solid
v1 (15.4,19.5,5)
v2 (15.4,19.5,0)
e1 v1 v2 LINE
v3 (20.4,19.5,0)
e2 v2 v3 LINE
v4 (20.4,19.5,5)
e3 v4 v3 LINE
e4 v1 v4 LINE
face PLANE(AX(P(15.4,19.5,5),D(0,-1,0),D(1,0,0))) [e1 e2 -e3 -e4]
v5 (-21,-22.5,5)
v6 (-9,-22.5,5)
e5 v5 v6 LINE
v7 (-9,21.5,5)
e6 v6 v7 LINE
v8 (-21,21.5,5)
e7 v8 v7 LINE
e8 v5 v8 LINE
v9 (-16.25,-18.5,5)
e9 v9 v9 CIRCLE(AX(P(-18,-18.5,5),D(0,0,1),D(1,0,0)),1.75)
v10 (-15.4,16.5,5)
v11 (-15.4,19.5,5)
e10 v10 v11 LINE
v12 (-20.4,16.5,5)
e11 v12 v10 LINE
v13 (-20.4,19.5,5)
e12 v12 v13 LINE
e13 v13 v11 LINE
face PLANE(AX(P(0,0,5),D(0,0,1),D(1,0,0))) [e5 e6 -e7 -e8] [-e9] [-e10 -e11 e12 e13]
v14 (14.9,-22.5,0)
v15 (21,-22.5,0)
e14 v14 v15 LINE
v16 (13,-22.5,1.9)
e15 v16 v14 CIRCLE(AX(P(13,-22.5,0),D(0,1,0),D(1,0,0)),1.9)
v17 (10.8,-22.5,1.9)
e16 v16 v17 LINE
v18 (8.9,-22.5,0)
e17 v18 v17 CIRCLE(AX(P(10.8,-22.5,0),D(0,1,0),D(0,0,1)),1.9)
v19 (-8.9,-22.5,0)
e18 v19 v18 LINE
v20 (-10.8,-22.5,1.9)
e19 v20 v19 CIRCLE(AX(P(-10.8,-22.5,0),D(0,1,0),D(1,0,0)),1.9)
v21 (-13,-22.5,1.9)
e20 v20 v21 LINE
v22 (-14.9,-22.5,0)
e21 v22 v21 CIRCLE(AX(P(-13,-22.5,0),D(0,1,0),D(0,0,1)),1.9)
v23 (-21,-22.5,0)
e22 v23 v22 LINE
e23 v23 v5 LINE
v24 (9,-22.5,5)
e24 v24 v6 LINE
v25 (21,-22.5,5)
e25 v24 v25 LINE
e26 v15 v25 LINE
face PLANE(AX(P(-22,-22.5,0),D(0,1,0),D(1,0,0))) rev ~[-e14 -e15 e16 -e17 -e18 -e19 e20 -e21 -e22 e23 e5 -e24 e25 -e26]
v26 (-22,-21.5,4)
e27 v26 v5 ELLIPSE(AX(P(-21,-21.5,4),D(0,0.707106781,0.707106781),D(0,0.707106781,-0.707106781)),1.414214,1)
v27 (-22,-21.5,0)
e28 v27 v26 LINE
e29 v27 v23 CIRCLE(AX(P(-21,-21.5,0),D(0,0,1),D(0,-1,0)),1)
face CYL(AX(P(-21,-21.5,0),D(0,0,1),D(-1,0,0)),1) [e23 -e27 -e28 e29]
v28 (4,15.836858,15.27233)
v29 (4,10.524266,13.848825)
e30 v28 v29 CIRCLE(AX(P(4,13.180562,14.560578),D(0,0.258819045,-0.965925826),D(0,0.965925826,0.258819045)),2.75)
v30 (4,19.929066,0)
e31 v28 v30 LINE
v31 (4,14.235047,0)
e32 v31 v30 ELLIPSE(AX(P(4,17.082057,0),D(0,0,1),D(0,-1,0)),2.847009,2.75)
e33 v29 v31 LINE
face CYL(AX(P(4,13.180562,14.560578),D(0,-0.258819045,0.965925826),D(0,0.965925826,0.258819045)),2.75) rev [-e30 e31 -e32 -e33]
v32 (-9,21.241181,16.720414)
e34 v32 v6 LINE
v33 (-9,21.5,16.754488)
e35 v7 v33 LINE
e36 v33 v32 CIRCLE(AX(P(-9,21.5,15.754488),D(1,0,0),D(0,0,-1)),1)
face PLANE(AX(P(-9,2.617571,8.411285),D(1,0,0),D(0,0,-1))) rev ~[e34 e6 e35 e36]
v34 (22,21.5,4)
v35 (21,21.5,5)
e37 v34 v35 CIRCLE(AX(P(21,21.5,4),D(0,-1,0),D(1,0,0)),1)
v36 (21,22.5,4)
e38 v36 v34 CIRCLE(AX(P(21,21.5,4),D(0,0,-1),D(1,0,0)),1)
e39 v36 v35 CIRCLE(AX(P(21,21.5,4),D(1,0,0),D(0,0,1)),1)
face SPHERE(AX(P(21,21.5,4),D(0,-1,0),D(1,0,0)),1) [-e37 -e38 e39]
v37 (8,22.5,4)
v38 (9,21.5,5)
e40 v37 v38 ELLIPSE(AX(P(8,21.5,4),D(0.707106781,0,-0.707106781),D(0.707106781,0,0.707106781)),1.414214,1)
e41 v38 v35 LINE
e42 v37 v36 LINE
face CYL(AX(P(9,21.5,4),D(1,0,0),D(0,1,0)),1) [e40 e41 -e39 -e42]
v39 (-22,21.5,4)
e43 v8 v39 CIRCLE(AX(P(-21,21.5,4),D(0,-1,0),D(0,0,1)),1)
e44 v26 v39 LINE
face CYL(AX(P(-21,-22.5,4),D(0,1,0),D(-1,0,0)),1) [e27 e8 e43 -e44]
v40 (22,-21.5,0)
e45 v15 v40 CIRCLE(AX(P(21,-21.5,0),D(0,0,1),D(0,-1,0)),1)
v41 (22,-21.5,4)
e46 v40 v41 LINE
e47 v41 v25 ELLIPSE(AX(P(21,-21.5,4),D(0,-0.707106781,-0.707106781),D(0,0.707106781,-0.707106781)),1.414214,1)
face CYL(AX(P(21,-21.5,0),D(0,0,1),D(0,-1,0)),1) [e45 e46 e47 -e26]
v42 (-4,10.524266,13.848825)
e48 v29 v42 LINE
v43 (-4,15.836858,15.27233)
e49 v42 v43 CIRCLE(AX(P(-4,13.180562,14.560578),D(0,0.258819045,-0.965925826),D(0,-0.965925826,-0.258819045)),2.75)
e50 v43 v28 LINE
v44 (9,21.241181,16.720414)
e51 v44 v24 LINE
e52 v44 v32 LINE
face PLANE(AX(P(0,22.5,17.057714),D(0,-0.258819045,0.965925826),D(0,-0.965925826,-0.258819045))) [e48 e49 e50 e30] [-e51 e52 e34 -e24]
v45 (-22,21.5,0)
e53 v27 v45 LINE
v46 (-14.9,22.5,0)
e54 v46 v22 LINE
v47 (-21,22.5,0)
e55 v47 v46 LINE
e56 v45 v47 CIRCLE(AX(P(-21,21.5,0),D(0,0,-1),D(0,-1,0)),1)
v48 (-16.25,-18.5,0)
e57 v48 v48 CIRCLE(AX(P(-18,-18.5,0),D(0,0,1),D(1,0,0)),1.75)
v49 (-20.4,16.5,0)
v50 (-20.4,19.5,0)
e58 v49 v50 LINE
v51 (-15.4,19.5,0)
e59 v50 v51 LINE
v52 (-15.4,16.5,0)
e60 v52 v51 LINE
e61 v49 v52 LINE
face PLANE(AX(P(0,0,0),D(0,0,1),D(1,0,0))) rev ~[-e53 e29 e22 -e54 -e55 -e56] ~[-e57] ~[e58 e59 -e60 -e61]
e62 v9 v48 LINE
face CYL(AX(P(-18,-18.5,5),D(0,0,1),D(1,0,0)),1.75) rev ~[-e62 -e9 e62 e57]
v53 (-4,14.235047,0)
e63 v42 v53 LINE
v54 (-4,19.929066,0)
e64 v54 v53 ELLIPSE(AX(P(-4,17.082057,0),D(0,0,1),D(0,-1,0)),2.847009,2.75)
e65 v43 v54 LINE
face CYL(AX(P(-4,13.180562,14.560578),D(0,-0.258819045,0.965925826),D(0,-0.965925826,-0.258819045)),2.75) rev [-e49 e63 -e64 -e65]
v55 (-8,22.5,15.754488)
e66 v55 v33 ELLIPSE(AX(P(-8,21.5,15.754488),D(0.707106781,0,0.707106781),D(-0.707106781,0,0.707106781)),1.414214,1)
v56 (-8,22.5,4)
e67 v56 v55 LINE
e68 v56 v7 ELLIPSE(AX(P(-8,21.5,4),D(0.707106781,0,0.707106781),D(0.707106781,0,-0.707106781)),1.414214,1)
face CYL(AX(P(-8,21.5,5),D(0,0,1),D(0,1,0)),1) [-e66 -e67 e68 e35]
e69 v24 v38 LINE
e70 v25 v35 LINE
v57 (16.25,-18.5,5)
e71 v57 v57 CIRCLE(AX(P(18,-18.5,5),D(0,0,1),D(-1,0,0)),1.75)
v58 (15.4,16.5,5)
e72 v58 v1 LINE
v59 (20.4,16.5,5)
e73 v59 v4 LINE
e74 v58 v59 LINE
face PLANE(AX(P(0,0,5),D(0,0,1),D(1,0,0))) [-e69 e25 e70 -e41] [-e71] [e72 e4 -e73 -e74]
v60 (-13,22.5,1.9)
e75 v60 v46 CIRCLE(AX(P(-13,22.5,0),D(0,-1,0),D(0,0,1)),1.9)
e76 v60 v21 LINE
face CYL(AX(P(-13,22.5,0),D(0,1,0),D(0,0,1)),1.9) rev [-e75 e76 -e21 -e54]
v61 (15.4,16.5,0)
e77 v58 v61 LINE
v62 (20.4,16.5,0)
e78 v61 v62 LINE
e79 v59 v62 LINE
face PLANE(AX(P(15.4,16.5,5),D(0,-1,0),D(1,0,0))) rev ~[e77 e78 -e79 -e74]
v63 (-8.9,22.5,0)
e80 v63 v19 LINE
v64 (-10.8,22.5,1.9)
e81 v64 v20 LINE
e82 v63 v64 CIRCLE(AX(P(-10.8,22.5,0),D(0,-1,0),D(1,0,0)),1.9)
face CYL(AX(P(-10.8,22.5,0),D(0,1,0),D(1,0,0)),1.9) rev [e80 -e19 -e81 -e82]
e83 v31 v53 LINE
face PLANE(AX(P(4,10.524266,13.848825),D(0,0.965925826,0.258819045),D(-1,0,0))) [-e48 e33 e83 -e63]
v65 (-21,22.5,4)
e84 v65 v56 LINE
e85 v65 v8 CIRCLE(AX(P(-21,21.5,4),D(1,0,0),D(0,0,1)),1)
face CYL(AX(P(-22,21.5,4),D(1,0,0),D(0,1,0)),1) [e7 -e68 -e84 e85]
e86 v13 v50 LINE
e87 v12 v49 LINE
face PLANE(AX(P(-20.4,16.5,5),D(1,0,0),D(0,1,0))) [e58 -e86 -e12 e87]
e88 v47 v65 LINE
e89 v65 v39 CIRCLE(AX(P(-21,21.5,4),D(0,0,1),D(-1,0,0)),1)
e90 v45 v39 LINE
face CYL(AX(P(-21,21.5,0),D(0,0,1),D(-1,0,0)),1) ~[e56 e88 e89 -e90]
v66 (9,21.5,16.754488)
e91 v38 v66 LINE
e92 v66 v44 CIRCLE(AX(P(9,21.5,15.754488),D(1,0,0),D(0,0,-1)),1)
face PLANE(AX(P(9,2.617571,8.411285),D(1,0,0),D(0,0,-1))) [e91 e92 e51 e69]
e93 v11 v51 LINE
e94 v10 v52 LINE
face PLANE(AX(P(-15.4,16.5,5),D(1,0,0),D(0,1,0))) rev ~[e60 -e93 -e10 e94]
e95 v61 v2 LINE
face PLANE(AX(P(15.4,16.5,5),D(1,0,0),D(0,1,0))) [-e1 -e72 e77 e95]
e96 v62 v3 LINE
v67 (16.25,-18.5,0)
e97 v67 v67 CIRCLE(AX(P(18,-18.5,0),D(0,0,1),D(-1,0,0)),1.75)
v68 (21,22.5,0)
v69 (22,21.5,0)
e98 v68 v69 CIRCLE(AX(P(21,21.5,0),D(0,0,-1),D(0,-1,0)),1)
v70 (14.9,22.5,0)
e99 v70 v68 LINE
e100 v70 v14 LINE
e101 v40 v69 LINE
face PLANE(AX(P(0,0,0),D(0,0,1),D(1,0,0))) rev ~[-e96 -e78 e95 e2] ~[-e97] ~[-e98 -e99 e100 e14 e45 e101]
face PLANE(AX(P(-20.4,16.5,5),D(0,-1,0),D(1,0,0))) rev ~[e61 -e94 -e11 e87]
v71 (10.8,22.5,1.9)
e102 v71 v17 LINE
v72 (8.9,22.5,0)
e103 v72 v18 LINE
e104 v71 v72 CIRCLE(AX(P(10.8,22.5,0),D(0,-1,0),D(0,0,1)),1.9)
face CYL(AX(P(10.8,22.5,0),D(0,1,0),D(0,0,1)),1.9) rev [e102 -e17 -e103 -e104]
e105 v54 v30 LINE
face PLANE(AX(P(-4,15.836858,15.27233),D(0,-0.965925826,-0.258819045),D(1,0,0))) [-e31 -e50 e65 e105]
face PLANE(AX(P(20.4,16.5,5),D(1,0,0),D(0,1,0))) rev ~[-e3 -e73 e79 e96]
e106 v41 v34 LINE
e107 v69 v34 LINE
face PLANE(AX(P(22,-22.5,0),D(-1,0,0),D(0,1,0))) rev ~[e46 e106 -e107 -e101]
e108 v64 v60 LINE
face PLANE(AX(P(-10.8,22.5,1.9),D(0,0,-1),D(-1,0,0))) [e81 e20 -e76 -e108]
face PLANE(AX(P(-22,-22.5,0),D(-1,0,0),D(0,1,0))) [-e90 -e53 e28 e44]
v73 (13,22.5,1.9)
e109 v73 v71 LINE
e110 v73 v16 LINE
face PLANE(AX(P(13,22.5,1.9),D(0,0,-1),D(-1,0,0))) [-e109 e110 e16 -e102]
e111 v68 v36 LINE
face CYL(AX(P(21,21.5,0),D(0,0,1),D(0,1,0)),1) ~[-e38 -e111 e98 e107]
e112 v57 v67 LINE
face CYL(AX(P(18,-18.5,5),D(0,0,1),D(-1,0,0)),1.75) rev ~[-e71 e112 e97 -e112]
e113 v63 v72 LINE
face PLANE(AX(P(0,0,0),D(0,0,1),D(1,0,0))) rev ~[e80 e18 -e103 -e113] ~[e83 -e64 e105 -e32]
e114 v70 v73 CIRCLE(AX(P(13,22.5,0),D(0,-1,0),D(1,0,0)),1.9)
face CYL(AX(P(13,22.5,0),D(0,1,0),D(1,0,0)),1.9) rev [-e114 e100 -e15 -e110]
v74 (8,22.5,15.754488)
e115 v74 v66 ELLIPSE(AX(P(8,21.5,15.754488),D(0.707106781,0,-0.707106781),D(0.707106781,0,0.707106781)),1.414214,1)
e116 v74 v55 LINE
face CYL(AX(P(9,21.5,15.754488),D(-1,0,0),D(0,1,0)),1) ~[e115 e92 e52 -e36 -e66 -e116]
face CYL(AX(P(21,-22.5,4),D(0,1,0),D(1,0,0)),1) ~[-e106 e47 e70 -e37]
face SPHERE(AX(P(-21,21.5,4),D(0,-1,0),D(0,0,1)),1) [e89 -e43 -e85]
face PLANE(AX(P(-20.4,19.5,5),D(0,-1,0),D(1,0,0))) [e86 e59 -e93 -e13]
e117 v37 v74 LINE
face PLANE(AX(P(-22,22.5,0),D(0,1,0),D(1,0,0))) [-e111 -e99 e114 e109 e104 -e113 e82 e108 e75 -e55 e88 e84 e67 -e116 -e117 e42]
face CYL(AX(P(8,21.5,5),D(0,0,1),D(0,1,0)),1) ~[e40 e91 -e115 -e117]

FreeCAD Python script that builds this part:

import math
import FreeCAD as App
import Part
import Sketcher
Q = App.Units.Quantity


def edges_at(feature, points):
    """Names of the edges that pass closest to the given points."""
    edges = feature.Shape.Edges
    near = lambda p: min(range(len(edges)), key=lambda i: edges[i].distToShape(Part.Vertex(*p))[0])
    return sorted({f"Edge{near(p) + 1}" for p in points})


def add_polygon(sketch, points):
    """Adds a closed chain of lines whose ends are joined by coincident constraints."""
    first, n = sketch.GeometryCount, len(points)
    for a, b in zip(points, points[1:] + points[:1]):
        sketch.addGeometry(Part.LineSegment(App.Vector(*a, 0), App.Vector(*b, 0)), False)
    for i in range(n):
        sketch.addConstraint(Sketcher.Constraint("Coincident", first + i, 2, first + (i + 1) % n, 1))

doc = App.newDocument("Part")
body = doc.addObject("PartDesign::Body", "Body")

sketch1 = body.newObject("Sketcher::SketchObject", "Sketch")
sketch1.AttachmentSupport = (doc.getObject("XY_Plane"), [""])
sketch1.MapMode = "FlatFace"
add_polygon(sketch1, [(-22, 22), (-22, -22), (22, -22), (22, 22)])
sketch1.addConstraint(Sketcher.Constraint("Vertical", 0))
sketch1.addConstraint(Sketcher.Constraint("Horizontal", 1))
sketch1.addConstraint(Sketcher.Constraint("Vertical", 2))
sketch1.addConstraint(Sketcher.Constraint("Horizontal", 3))
sketch1.addConstraint(Sketcher.Constraint("Symmetric", 0, 2, 2, 2, -1, 1))
sketch1.addConstraint(Sketcher.Constraint("DistanceX", 1, 1, 1, 2, 44.0))
sketch1.addConstraint(Sketcher.Constraint("DistanceY", 0, 2, 0, 1, 45.0))
pad1 = body.newObject("PartDesign::Pad", "Pad")
pad1.Profile = sketch1
pad1.Length = 5

sketch2 = body.newObject("Sketcher::SketchObject", "Sketch001")
sketch2.AttachmentSupport = (doc.getObject("XZ_Plane"), [""])
sketch2.MapMode = "FlatFace"
sketch2.AttachmentOffset = App.Placement(App.Vector(0, 0, -22.5), App.Rotation())
sketch2.addGeometry(Part.LineSegment(App.Vector(-8.9, 0, 0), App.Vector(-14.9, 0, 0)), False)
sketch2.addGeometry(Part.ArcOfCircle(Part.Circle(App.Vector(-13, 0, 0), App.Vector(0, 0, 1), 1.9), math.radians(90), math.radians(180)), False)
sketch2.addGeometry(Part.LineSegment(App.Vector(-13, 1.9, 0), App.Vector(-10.8, 1.9, 0)), False)
sketch2.addGeometry(Part.ArcOfCircle(Part.Circle(App.Vector(-10.8, 0, 0), App.Vector(0, 0, 1), 1.9), math.radians(0), math.radians(90)), False)
sketch2.addGeometry(Part.LineSegment(App.Vector(10.8, 1.9, 0), App.Vector(13, 1.9, 0)), False)
sketch2.addGeometry(Part.ArcOfCircle(Part.Circle(App.Vector(13, 0, 0), App.Vector(0, 0, 1), 1.9), math.radians(0), math.radians(90)), False)
sketch2.addGeometry(Part.LineSegment(App.Vector(14.9, 0, 0), App.Vector(8.9, 0, 0)), False)
sketch2.addGeometry(Part.ArcOfCircle(Part.Circle(App.Vector(10.8, 0, 0), App.Vector(0, 0, 1), 1.9), math.radians(90), math.radians(180)), False)
sketch2.addConstraint(Sketcher.Constraint("Coincident", 0, 2, 1, 2))
sketch2.addConstraint(Sketcher.Constraint("Tangent", 1, 1, 2, 1))
sketch2.addConstraint(Sketcher.Constraint("Tangent", 2, 2, 3, 2))
sketch2.addConstraint(Sketcher.Constraint("Coincident", 3, 1, 0, 1))
sketch2.addConstraint(Sketcher.Constraint("Tangent", 4, 2, 5, 2))
sketch2.addConstraint(Sketcher.Constraint("Coincident", 5, 1, 6, 1))
sketch2.addConstraint(Sketcher.Constraint("Coincident", 6, 2, 7, 2))
sketch2.addConstraint(Sketcher.Constraint("Tangent", 7, 1, 4, 1))
sketch2.addConstraint(Sketcher.Constraint("Horizontal", 0))
sketch2.addConstraint(Sketcher.Constraint("Horizontal", 2))
sketch2.addConstraint(Sketcher.Constraint("Horizontal", 4))
sketch2.addConstraint(Sketcher.Constraint("Horizontal", 6))
sketch2.addConstraint(Sketcher.Constraint("Equal", 1, 3))
sketch2.addConstraint(Sketcher.Constraint("Equal", 3, 5))
sketch2.addConstraint(Sketcher.Constraint("Equal", 5, 7))
sketch2.addConstraint(Sketcher.Constraint("Symmetric", 1, 3, 5, 3, -1, 1))
sketch2.addConstraint(Sketcher.Constraint("Symmetric", 3, 1, 6, 2, -1, 1))
sketch2.addConstraint(Sketcher.Constraint("PointOnObject", 1, 3, -1))
sketch2.addConstraint(Sketcher.Constraint("PointOnObject", 0, 2, -1))
sketch2.addConstraint(Sketcher.Constraint("Radius", 1, 1.9))
sketch2.addConstraint(Sketcher.Constraint("DistanceX", 0, 2, 0, 1, 6.0))
sketch2.addConstraint(Sketcher.Constraint("DistanceX", 1, 3, -1, 1, 13.0))
pocket1 = body.newObject("PartDesign::Pocket", "Pocket")
pocket1.Profile = sketch2
pocket1.Type = "ThroughAll"
pocket1.Reversed = True

sketch3 = body.newObject("Sketcher::SketchObject", "Sketch002")
sketch3.AttachmentSupport = (doc.getObject("YZ_Plane"), [""])
sketch3.MapMode = "FlatFace"
add_polygon(sketch3, [(-22, 5), (22, 5), (22, 17)])
sketch3.addConstraint(Sketcher.Constraint("Horizontal", 0))
sketch3.addConstraint(Sketcher.Constraint("Vertical", 1))
sketch3.addConstraint(Sketcher.Constraint("DistanceX", 0, 1, 0, 2, 45.0))
sketch3.addConstraint(Sketcher.Constraint("Angle", 2, Q("-165 deg")))
sketch3.addConstraint(Sketcher.Constraint("DistanceY", -1, 1, 0, 2, 5.0))
sketch3.addConstraint(Sketcher.Constraint("DistanceX", -1, 1, 0, 2, 22.5))
pad2 = body.newObject("PartDesign::Pad", "Pad001")
pad2.Profile = sketch3
pad2.Length = 18
pad2.Midplane = True

sketch4 = body.newObject("Sketcher::SketchObject", "Sketch003")
sketch4.Placement = App.Placement(App.Vector(0, -2.757214, 10.290064), App.Rotation(App.Vector(1, 0, 0), App.Vector(0, 0.965925826, 0.258819045), App.Vector(0, -0.258819045, 0.965925826), "ZXY"))
sketch4.addGeometry(Part.LineSegment(App.Vector(4, 19.2, 0), App.Vector(-4, 19.2, 0)), False)
sketch4.addGeometry(Part.ArcOfCircle(Part.Circle(App.Vector(-4, 16.5, 0), App.Vector(0, 0, 1), 2.8), math.radians(90), math.radians(270)), False)
sketch4.addGeometry(Part.LineSegment(App.Vector(-4, 13.7, 0), App.Vector(4, 13.7, 0)), False)
sketch4.addGeometry(Part.ArcOfCircle(Part.Circle(App.Vector(4, 16.5, 0), App.Vector(0, 0, 1), 2.8), math.radians(-90), math.radians(90)), False)
sketch4.addConstraint(Sketcher.Constraint("Tangent", 0, 2, 1, 1))
sketch4.addConstraint(Sketcher.Constraint("Tangent", 1, 2, 2, 1))
sketch4.addConstraint(Sketcher.Constraint("Tangent", 2, 2, 3, 1))
sketch4.addConstraint(Sketcher.Constraint("Tangent", 3, 2, 0, 1))
sketch4.addConstraint(Sketcher.Constraint("Horizontal", 0))
sketch4.addConstraint(Sketcher.Constraint("Horizontal", 2))
sketch4.addConstraint(Sketcher.Constraint("DistanceX", 0, 2, 0, 1, 8.0))
sketch4.addConstraint(Sketcher.Constraint("Radius", 1, 2.75))
sketch4.addConstraint(Sketcher.Constraint("DistanceX", 1, 3, -1, 1, 4.0))
sketch4.addConstraint(Sketcher.Constraint("DistanceY", -1, 1, 1, 3, 16.5))
pocket2 = body.newObject("PartDesign::Pocket", "Pocket001")
pocket2.Profile = sketch4
pocket2.Type = "ThroughAll"

sketch5 = body.newObject("Sketcher::SketchObject", "Sketch004")
sketch5.AttachmentSupport = (doc.getObject("XY_Plane"), [""])
sketch5.MapMode = "FlatFace"
sketch5.AttachmentOffset = App.Placement(App.Vector(0, 0, 5), App.Rotation())
add_polygon(sketch5, [(-20.4, 19.5), (-20.4, 16.5), (-15.4, 16.5), (-15.4, 19.5)])
add_polygon(sketch5, [(15.4, 19.5), (15.4, 16.5), (20.4, 16.5), (20.4, 19.5)])
sketch5.addConstraint(Sketcher.Constraint("Vertical", 0))
sketch5.addConstraint(Sketcher.Constraint("Horizontal", 1))
sketch5.addConstraint(Sketcher.Constraint("Vertical", 2))
sketch5.addConstraint(Sketcher.Constraint("Horizontal", 3))
sketch5.addConstraint(Sketcher.Constraint("Vertical", 4))
sketch5.addConstraint(Sketcher.Constraint("Horizontal", 5))
sketch5.addConstraint(Sketcher.Constraint("Vertical", 6))
sketch5.addConstraint(Sketcher.Constraint("Horizontal", 7))
sketch5.addConstraint(Sketcher.Constraint("Symmetric", 1, 2, 4, 2, -2))
sketch5.addConstraint(Sketcher.Constraint("Symmetric", 3, 2, 6, 2, -2))
sketch5.addConstraint(Sketcher.Constraint("DistanceX", 1, 1, 1, 2, 5.0))
sketch5.addConstraint(Sketcher.Constraint("DistanceY", 0, 2, 0, 1, 3.0))
sketch5.addConstraint(Sketcher.Constraint("DistanceX", 0, 2, -1, 1, 20.4))
sketch5.addConstraint(Sketcher.Constraint("DistanceY", -1, 1, 0, 2, 16.5))
pocket3 = body.newObject("PartDesign::Pocket", "Pocket002")
pocket3.Profile = sketch5
pocket3.Type = "ThroughAll"

sketch6 = body.newObject("Sketcher::SketchObject", "Sketch005")
sketch6.AttachmentSupport = (doc.getObject("XY_Plane"), [""])
sketch6.MapMode = "FlatFace"
sketch6.AttachmentOffset = App.Placement(App.Vector(0, 0, 5), App.Rotation())
sketch6.addGeometry(Part.Circle(App.Vector(-18, -18.5, 0), App.Vector(0, 0, 1), 1.8), False)
sketch6.addGeometry(Part.Circle(App.Vector(18, -18.5, 0), App.Vector(0, 0, 1), 1.8), False)
sketch6.addConstraint(Sketcher.Constraint("Equal", 0, 1))
sketch6.addConstraint(Sketcher.Constraint("Symmetric", 0, 3, 1, 3, -2))
sketch6.addConstraint(Sketcher.Constraint("Diameter", 0, 3.5))
sketch6.addConstraint(Sketcher.Constraint("DistanceX", 0, 3, -1, 1, 18.0))
sketch6.addConstraint(Sketcher.Constraint("DistanceY", 0, 3, -1, 1, 18.5))
pocket4 = body.newObject("PartDesign::Pocket", "Pocket003")
pocket4.Profile = sketch6
pocket4.Type = "ThroughAll"
doc.recompute()

fillet = body.newObject("PartDesign::Fillet", "Fillet")
fillet.Base = (pocket4, edges_at(pocket4, [
    (-22, 0, 5),
    (-15.5, 22.5, 5),
    (-9, 22.5, 11.029),
    (0, 22.5, 17.058),
    (22, 0, 5),
    (9, 22.5, 11.029),
    (22, -22.5, 2.5),
    (-22, -22.5, 2.5),
    (-22, 22.5, 2.5),
    (22, 22.5, 2.5),
    (15.5, 22.5, 5),
]))
fillet.Radius = 1

doc.recompute()
